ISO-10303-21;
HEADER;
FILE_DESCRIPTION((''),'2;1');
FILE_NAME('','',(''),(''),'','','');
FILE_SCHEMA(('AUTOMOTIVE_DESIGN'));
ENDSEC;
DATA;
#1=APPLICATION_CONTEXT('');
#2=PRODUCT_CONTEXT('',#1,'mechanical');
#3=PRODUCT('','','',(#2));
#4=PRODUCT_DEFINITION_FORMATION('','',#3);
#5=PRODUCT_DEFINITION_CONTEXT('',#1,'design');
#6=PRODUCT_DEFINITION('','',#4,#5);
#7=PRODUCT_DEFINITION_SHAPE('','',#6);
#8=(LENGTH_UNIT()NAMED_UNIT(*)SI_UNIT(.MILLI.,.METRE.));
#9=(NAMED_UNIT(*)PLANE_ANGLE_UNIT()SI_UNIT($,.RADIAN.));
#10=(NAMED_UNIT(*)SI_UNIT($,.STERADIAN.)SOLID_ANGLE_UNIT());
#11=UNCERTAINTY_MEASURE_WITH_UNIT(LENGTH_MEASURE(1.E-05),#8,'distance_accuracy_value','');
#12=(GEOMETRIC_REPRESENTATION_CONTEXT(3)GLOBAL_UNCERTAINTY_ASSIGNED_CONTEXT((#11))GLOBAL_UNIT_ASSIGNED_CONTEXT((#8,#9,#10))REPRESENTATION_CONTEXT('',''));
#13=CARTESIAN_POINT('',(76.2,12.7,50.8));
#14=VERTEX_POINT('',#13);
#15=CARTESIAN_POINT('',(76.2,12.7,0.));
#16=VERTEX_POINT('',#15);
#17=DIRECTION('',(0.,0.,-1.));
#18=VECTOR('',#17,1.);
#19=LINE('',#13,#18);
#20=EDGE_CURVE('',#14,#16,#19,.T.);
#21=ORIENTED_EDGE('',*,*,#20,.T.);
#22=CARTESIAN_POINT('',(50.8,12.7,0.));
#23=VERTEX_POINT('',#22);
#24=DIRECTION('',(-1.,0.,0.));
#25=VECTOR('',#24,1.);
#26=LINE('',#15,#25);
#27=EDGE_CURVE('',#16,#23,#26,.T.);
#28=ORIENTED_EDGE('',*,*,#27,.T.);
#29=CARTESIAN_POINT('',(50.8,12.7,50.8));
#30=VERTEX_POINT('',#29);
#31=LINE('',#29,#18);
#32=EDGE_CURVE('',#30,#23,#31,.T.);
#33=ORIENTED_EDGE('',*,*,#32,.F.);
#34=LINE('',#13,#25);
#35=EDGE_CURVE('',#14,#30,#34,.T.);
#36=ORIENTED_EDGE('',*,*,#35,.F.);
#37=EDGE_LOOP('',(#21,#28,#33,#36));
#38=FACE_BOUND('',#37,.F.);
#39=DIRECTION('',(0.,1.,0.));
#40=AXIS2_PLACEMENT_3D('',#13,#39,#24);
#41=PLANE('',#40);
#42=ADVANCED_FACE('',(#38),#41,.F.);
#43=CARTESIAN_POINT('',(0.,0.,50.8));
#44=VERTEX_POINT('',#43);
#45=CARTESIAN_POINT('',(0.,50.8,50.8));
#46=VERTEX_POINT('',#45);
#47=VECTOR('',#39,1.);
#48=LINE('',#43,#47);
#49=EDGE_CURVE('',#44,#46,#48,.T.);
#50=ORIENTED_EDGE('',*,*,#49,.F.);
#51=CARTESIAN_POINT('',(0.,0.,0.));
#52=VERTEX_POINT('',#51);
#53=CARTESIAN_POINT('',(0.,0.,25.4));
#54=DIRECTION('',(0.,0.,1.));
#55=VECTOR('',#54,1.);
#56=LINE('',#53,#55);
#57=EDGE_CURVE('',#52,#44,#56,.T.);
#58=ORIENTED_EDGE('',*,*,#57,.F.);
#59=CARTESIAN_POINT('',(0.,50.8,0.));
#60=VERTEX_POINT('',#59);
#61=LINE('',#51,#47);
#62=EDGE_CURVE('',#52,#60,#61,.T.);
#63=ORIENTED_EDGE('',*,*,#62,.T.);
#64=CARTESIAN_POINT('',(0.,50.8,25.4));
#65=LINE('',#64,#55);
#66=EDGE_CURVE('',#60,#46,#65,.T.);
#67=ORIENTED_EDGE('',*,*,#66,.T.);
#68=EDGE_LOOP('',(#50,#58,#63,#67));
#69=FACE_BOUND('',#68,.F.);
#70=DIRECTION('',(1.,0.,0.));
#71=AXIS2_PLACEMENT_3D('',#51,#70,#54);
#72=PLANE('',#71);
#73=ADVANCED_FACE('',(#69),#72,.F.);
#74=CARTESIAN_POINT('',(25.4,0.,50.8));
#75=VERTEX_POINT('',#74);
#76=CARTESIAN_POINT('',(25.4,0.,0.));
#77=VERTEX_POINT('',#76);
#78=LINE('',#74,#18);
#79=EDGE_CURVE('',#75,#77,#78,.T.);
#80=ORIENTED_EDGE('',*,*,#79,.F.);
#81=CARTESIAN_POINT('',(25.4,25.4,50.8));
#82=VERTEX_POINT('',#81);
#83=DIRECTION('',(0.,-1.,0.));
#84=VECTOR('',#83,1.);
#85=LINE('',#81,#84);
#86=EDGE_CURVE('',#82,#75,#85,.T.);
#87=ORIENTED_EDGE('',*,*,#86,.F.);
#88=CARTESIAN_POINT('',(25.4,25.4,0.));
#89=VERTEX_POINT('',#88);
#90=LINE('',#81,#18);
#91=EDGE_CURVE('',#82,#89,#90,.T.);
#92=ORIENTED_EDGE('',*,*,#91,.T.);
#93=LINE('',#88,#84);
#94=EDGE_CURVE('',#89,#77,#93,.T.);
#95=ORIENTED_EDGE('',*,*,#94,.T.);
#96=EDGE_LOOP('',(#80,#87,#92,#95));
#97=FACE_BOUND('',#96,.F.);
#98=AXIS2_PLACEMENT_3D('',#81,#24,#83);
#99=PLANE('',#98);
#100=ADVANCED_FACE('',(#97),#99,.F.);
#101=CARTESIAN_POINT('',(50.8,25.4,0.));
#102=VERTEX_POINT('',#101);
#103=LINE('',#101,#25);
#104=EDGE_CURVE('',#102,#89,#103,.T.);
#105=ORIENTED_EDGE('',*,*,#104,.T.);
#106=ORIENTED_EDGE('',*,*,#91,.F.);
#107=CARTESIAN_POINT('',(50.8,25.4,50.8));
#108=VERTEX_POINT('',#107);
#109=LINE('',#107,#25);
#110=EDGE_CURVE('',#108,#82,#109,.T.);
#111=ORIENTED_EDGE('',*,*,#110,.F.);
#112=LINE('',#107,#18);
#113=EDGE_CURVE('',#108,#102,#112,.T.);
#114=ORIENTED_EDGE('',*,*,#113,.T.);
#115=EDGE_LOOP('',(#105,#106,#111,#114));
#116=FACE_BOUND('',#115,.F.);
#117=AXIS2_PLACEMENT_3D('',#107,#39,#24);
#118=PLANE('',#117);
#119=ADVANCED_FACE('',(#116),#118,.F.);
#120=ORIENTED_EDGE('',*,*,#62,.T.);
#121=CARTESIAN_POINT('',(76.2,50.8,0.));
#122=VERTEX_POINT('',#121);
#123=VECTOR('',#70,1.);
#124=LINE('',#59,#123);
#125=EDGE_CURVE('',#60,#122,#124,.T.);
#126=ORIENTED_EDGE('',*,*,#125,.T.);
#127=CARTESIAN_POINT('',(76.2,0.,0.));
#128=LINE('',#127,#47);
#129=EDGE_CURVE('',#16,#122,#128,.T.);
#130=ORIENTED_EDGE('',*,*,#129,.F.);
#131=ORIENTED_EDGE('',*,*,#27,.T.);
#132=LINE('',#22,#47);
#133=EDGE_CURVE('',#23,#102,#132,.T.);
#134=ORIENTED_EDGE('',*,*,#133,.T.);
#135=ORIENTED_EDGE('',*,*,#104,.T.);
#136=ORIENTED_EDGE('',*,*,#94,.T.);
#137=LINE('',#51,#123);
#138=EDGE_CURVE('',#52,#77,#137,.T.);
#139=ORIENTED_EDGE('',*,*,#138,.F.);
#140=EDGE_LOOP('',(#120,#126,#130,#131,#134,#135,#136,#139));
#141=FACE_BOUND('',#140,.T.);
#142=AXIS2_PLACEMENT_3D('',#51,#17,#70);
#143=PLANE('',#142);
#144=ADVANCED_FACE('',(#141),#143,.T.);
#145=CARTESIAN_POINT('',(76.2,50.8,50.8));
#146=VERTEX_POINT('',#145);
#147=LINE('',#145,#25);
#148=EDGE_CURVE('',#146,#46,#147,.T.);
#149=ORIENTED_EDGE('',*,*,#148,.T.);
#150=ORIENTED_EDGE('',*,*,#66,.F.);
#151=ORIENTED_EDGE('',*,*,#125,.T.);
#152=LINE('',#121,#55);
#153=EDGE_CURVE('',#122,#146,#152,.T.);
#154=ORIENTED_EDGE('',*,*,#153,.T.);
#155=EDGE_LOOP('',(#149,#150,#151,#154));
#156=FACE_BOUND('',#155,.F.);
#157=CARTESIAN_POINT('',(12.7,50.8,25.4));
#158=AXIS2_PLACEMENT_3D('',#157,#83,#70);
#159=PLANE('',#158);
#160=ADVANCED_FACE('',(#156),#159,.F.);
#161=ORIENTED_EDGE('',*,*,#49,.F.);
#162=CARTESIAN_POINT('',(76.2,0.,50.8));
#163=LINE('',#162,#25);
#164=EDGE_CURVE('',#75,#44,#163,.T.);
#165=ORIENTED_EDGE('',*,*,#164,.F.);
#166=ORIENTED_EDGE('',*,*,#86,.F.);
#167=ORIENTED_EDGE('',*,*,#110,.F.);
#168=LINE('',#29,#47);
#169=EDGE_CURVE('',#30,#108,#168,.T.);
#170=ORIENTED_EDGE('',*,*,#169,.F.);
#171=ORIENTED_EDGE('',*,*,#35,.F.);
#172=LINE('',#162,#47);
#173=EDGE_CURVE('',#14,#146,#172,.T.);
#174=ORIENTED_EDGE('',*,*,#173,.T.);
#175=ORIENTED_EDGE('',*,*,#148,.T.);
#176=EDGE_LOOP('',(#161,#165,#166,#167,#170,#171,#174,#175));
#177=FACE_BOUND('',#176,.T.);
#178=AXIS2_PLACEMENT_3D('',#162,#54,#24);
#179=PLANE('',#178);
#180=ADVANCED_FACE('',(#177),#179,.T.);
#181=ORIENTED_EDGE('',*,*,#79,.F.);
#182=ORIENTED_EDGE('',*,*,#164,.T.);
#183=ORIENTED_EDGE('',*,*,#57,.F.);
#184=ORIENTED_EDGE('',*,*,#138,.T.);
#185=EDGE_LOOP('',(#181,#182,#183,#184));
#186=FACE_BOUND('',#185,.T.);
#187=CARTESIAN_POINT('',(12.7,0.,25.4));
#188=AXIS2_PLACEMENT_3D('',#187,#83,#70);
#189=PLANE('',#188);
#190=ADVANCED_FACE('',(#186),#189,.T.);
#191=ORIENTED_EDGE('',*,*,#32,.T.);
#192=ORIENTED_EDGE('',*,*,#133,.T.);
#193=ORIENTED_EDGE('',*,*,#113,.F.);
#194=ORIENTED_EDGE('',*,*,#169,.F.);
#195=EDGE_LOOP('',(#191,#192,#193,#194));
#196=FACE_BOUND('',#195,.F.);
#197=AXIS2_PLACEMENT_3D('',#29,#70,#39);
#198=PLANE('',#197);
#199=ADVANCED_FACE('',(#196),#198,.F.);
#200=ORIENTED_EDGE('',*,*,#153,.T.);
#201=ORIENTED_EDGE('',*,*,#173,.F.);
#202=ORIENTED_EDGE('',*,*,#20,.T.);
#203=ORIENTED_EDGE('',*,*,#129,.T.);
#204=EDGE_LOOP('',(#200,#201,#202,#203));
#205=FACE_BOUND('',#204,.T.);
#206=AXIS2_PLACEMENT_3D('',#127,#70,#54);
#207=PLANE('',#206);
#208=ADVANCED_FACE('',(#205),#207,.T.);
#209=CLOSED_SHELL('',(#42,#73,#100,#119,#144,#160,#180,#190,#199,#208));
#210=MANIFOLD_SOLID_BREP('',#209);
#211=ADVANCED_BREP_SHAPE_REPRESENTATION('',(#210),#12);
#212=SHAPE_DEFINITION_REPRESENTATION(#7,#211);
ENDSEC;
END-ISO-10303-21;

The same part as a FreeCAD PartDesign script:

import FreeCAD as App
import Part
import Sketcher
Q = App.Units.Quantity

doc = App.newDocument("Part")
params = doc.addObject("Spreadsheet::Sheet", "Params")
for row, (alias, value) in enumerate([
    ("sketch1_width", "3 in"),
    ("sketch1_height", "2 in"),
    ("pad1_length", "2 in"),
    ("sketch2_width", "2 in"),
    ("pocket1_length", "2 in"),
], start=1):
    params.set(f"A{row}", alias)
    params.set(f"B{row}", "=" + value)
    params.setAlias(f"B{row}", alias)

body = doc.addObject("PartDesign::Body", "Body")

# Sketch on XZ plane
sketch1 = doc.addObject("Sketcher::SketchObject", "Sketch")
body.addObject(sketch1)
sketch1.AttachmentSupport = (doc.XZ_Plane, [""])
sketch1.MapMode = "FlatFace"
sketch1.addGeometry(Part.LineSegment(App.Vector(0, 50.8, 0), App.Vector(0, 0, 0)), False)
sketch1.addGeometry(Part.LineSegment(App.Vector(0, 0, 0), App.Vector(76.2, 0, 0)), False)
sketch1.addGeometry(Part.LineSegment(App.Vector(76.2, 0, 0), App.Vector(76.2, 50.8, 0)), False)
sketch1.addGeometry(Part.LineSegment(App.Vector(76.2, 50.8, 0), App.Vector(0, 50.8, 0)), False)
sketch1.addConstraint(Sketcher.Constraint("Coincident", 0, 2, 1, 1))
sketch1.addConstraint(Sketcher.Constraint("Coincident", 1, 2, 2, 1))
sketch1.addConstraint(Sketcher.Constraint("Coincident", 2, 2, 3, 1))
sketch1.addConstraint(Sketcher.Constraint("Coincident", 3, 2, 0, 1))
sketch1.addConstraint(Sketcher.Constraint("Vertical", 0))
sketch1.addConstraint(Sketcher.Constraint("Horizontal", 1))
sketch1.addConstraint(Sketcher.Constraint("Vertical", 2))
sketch1.addConstraint(Sketcher.Constraint("Horizontal", 3))
sketch1.addConstraint(Sketcher.Constraint("Coincident", 0, 2, -1, 1))
sketch1.addConstraint(Sketcher.Constraint("DistanceX", 1, 1, 1, 2, Q("3 in")))
sketch1.addConstraint(Sketcher.Constraint("DistanceY", 0, 2, 0, 1, Q("2 in")))
sketch1.setExpression("Constraints[9]", "Params.sketch1_width")
sketch1.setExpression("Constraints[10]", "Params.sketch1_height")
pad1 = doc.addObject("PartDesign::Pad", "Pad")
body.addObject(pad1)
pad1.Profile = sketch1
pad1.setExpression("Length", "Params.pad1_length")
pad1.Reversed = True

# Sketch on XY plane
sketch2 = doc.addObject("Sketcher::SketchObject", "Sketch001")
body.addObject(sketch2)
sketch2.AttachmentSupport = (doc.XY_Plane, [""])
sketch2.MapMode = "FlatFace"
sketch2.AttachmentOffset = App.Placement(App.Vector(0, 0, 2 * 25.4), App.Rotation())
sketch2.addGeometry(Part.LineSegment(App.Vector(25.4, 25.4, 0), App.Vector(25.4, 0, 0)), False)
sketch2.addGeometry(Part.LineSegment(App.Vector(25.4, 0, 0), App.Vector(76.2, 0, 0)), False)
sketch2.addGeometry(Part.LineSegment(App.Vector(76.2, 0, 0), App.Vector(76.2, 12.7, 0)), False)
sketch2.addGeometry(Part.LineSegment(App.Vector(76.2, 12.7, 0), App.Vector(50.8, 12.7, 0)), False)
sketch2.addGeometry(Part.LineSegment(App.Vector(50.8, 12.7, 0), App.Vector(50.8, 25.4, 0)), False)
sketch2.addGeometry(Part.LineSegment(App.Vector(50.8, 25.4, 0), App.Vector(25.4, 25.4, 0)), False)
sketch2.addConstraint(Sketcher.Constraint("Coincident", 0, 2, 1, 1))
sketch2.addConstraint(Sketcher.Constraint("Coincident", 1, 2, 2, 1))
sketch2.addConstraint(Sketcher.Constraint("Coincident", 2, 2, 3, 1))
sketch2.addConstraint(Sketcher.Constraint("Coincident", 3, 2, 4, 1))
sketch2.addConstraint(Sketcher.Constraint("Coincident", 4, 2, 5, 1))
sketch2.addConstraint(Sketcher.Constraint("Coincident", 5, 2, 0, 1))
sketch2.addConstraint(Sketcher.Constraint("Vertical", 0))
sketch2.addConstraint(Sketcher.Constraint("Horizontal", 1))
sketch2.addConstraint(Sketcher.Constraint("Vertical", 2))
sketch2.addConstraint(Sketcher.Constraint("Horizontal", 3))
sketch2.addConstraint(Sketcher.Constraint("Vertical", 4))
sketch2.addConstraint(Sketcher.Constraint("Horizontal", 5))
sketch2.addConstraint(Sketcher.Constraint("PointOnObject", 0, 2, -1))
sketch2.addConstraint(Sketcher.Constraint("Equal", 3, 5))
sketch2.addConstraint(Sketcher.Constraint("Equal", 5, 0))
sketch2.addConstraint(Sketcher.Constraint("Equal", 2, 4))
sketch2.addConstraint(Sketcher.Constraint("DistanceX", 1, 1, 1, 2, Q("2 in")))
sketch2.addConstraint(Sketcher.Constraint("DistanceX", -1, 1, 0, 2, Q("1 in")))
sketch2.setExpression("Constraints[16]", "Params.sketch2_width")
pocket1 = doc.addObject("PartDesign::Pocket", "Pocket")
body.addObject(pocket1)
pocket1.Profile = sketch2
pocket1.setExpression("Length", "Params.pocket1_length")

doc.recompute()
